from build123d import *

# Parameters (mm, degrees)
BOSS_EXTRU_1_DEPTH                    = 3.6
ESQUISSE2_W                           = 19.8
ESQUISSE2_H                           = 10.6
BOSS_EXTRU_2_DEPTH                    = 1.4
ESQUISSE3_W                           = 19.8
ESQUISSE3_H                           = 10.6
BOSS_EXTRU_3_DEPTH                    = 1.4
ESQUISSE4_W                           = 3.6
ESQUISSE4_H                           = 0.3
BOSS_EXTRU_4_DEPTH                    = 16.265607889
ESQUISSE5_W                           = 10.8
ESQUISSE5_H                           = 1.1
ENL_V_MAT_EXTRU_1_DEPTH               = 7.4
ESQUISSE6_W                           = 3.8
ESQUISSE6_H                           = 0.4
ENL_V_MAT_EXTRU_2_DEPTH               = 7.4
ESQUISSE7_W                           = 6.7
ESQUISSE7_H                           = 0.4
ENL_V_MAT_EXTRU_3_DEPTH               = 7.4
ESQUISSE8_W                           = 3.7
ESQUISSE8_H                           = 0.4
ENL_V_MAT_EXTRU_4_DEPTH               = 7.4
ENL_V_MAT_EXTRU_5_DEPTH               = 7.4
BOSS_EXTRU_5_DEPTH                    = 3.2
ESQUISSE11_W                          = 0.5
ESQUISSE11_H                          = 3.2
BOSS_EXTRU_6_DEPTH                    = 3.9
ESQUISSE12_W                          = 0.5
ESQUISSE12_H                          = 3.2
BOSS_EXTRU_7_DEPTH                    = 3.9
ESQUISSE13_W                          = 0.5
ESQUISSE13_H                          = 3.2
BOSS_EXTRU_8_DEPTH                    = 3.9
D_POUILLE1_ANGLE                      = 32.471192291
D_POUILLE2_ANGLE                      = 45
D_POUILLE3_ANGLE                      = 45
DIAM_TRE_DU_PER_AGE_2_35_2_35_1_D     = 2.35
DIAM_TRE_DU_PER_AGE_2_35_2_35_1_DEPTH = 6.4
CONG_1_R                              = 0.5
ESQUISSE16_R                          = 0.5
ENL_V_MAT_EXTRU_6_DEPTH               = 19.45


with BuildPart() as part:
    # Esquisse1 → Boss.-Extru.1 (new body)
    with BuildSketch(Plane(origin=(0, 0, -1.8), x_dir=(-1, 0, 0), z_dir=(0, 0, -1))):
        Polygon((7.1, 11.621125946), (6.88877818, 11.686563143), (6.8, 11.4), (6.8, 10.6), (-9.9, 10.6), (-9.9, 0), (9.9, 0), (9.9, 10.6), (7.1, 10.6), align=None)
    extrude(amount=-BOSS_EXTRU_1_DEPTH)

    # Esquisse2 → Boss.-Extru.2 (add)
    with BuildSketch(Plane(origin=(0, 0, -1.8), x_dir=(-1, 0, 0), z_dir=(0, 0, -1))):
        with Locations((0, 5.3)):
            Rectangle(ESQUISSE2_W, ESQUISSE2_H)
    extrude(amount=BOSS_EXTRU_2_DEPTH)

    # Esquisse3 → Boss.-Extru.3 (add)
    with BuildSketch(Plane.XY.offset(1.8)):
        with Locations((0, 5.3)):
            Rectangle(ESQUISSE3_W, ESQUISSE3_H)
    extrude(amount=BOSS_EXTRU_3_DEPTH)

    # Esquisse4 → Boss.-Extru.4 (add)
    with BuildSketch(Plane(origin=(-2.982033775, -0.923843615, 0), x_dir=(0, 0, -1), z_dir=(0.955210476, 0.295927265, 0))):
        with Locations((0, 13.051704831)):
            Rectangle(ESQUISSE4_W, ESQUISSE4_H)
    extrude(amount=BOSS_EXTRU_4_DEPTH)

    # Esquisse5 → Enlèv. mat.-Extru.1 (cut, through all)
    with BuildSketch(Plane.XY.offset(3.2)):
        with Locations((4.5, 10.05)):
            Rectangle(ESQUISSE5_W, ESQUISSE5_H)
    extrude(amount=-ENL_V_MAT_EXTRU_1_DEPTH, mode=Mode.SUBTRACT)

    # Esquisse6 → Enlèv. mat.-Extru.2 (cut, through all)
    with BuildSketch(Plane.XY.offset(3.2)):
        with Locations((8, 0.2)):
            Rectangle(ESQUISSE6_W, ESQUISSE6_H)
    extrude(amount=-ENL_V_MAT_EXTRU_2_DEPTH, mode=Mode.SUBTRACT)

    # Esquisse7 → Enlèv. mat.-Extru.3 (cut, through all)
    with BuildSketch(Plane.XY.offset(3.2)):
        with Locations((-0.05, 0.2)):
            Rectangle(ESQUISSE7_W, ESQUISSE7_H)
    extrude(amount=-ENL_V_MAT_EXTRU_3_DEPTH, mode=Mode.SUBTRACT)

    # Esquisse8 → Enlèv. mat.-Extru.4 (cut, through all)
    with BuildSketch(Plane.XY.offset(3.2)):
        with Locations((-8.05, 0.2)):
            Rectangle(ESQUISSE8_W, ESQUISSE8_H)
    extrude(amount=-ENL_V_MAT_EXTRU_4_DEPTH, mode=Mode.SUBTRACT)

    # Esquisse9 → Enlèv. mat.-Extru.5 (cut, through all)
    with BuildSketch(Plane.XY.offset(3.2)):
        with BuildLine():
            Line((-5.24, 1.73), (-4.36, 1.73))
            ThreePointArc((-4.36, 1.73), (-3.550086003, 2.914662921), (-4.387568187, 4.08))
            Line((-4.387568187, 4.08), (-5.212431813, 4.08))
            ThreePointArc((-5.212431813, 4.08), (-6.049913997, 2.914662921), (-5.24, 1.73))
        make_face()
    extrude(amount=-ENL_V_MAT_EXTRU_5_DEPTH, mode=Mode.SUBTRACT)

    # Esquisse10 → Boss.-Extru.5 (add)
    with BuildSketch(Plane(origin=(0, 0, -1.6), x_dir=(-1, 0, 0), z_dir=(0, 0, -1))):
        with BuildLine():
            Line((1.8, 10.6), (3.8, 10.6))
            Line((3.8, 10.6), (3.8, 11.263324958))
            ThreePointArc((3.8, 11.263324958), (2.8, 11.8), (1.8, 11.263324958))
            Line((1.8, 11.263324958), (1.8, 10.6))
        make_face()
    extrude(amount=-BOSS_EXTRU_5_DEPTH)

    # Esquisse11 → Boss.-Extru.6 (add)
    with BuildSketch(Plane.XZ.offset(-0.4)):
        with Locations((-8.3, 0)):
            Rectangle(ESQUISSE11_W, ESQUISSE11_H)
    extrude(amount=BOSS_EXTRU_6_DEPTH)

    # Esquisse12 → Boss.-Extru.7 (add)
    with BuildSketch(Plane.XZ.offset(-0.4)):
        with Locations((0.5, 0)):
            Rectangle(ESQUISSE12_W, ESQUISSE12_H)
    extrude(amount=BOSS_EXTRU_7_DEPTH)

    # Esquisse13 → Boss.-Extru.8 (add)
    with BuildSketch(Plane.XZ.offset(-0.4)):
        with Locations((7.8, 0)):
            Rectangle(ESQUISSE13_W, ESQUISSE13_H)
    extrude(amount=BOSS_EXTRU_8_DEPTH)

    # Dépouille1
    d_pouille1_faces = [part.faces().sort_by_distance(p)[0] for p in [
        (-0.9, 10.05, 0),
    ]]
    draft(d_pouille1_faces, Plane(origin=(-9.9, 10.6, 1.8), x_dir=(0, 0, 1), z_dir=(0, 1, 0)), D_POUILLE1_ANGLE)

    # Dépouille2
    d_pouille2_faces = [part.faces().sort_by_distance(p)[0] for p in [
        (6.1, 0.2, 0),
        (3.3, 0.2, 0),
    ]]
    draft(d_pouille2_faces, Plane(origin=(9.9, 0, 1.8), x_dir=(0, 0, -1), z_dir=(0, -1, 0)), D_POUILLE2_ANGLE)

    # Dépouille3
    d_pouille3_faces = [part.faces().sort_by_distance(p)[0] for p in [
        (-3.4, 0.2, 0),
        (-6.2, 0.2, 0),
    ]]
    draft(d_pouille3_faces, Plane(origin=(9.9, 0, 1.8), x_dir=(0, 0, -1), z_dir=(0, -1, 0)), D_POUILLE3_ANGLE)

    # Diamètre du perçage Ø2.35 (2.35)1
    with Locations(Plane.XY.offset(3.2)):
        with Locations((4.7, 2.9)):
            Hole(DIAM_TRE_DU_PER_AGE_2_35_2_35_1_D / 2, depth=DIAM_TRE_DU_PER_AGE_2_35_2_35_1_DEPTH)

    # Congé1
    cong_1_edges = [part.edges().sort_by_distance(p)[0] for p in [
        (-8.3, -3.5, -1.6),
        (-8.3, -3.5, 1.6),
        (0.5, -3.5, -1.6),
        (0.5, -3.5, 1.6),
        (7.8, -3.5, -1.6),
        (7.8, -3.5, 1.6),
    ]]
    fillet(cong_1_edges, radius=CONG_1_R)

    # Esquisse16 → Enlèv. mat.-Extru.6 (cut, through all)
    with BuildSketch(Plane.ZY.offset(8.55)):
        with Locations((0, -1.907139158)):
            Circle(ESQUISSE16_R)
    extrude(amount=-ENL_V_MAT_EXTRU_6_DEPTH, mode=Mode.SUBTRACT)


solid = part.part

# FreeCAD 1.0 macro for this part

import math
import FreeCAD as App
import Part
import Sketcher
from FreeCAD import Vector
Q = App.Units.Quantity


def edges_at(feature, points):
    """Names of the edges that pass closest to the given points."""
    edges = feature.Shape.Edges
    near = lambda p: min(range(len(edges)), key=lambda i: edges[i].distToShape(Part.Vertex(*p))[0])
    return sorted({f"Edge{near(p) + 1}" for p in points})


def faces_at(feature, points):
    """Names of the faces that lie closest to the given points."""
    faces = feature.Shape.Faces
    near = lambda p: min(range(len(faces)), key=lambda i: faces[i].distToShape(Part.Vertex(*p))[0])
    return sorted({f"Face{near(p) + 1}" for p in points})

doc = App.newDocument("Part")
body = doc.addObject("PartDesign::Body", "Body")

sketch1 = body.newObject("Sketcher::SketchObject", "Sketch")
sketch1.AttachmentSupport = (doc.getObject("XY_Plane"), [""])
sketch1.MapMode = "FlatFace"
sketch1.AttachmentOffset = App.Placement(Vector(0, 0, -1.8), App.Rotation())
sketch1.addGeometry([
    Part.LineSegment(Vector(-7.1, 11.621126, 0), Vector(-6.888778, 11.686563, 0)),
    Part.LineSegment(Vector(-6.888778, 11.686563, 0), Vector(-6.8, 11.4, 0)),
    Part.LineSegment(Vector(-6.8, 11.4, 0), Vector(-6.8, 10.6, 0)),
    Part.LineSegment(Vector(-6.8, 10.6, 0), Vector(9.9, 10.6, 0)),
    Part.LineSegment(Vector(9.9, 10.6, 0), Vector(9.9, 0, 0)),
    Part.LineSegment(Vector(9.9, 0, 0), Vector(-9.9, 0, 0)),
    Part.LineSegment(Vector(-9.9, 0, 0), Vector(-9.9, 10.6, 0)),
    Part.LineSegment(Vector(-9.9, 10.6, 0), Vector(-7.1, 10.6, 0)),
    Part.LineSegment(Vector(-7.1, 10.6, 0), Vector(-7.1, 11.621126, 0)),
], False)
sketch1.addConstraint([
    Sketcher.Constraint("Coincident", 0, 2, 1, 1),
    Sketcher.Constraint("Coincident", 1, 2, 2, 1),
    Sketcher.Constraint("Coincident", 2, 2, 3, 1),
    Sketcher.Constraint("Coincident", 3, 2, 4, 1),
    Sketcher.Constraint("Coincident", 4, 2, 5, 1),
    Sketcher.Constraint("Coincident", 5, 2, 6, 1),
    Sketcher.Constraint("Coincident", 6, 2, 7, 1),
    Sketcher.Constraint("Coincident", 7, 2, 8, 1),
    Sketcher.Constraint("Coincident", 8, 2, 0, 1),
    Sketcher.Constraint("Vertical", 2),
    Sketcher.Constraint("Horizontal", 3),
    Sketcher.Constraint("Vertical", 4),
    Sketcher.Constraint("Horizontal", 5),
    Sketcher.Constraint("Vertical", 6),
    Sketcher.Constraint("Horizontal", 7),
    Sketcher.Constraint("Vertical", 8),
    Sketcher.Constraint("Symmetric", 4, 2, 5, 2, -1, 1),
    Sketcher.Constraint("Perpendicular", 0, 1),
    Sketcher.Constraint("Horizontal", 3, 2, 6, 2),
    Sketcher.Constraint("DistanceX", 3, 1, 3, 2, Q("16.7 mm")),
    Sketcher.Constraint("DistanceX", 5, 2, 5, 1, Q("19.8 mm")),
    Sketcher.Constraint("DistanceX", 7, 1, 7, 2, Q("2.8 mm")),
    Sketcher.Constraint("DistanceY", 2, 2, 2, 1, Q("0.8 mm")),
    Sketcher.Constraint("DistanceY", 4, 2, 4, 1, Q("10.6 mm")),
    Sketcher.Constraint("Distance", 1, Q("0.3 mm")),
    Sketcher.Constraint("DistanceY", 8, 1, 8, 2, Q("1.021126 mm")),
])
pad1 = body.newObject("PartDesign::Pad", "Pad")
pad1.Profile = sketch1
pad1.Length = 3.6

sketch2 = body.newObject("Sketcher::SketchObject", "Sketch001")
sketch2.AttachmentSupport = (doc.getObject("XY_Plane"), [""])
sketch2.MapMode = "FlatFace"
sketch2.AttachmentOffset = App.Placement(Vector(0, 0, -1.8), App.Rotation())
sketch2.addGeometry([
    Part.LineSegment(Vector(9.9, 10.6, 0), Vector(9.9, 0, 0)),
    Part.LineSegment(Vector(9.9, 0, 0), Vector(-9.9, 0, 0)),
    Part.LineSegment(Vector(-9.9, 0, 0), Vector(-9.9, 10.6, 0)),
    Part.LineSegment(Vector(-9.9, 10.6, 0), Vector(9.9, 10.6, 0)),
], False)
sketch2.addConstraint([
    Sketcher.Constraint("Coincident", 0, 2, 1, 1),
    Sketcher.Constraint("Coincident", 1, 2, 2, 1),
    Sketcher.Constraint("Coincident", 2, 2, 3, 1),
    Sketcher.Constraint("Coincident", 3, 2, 0, 1),
    Sketcher.Constraint("Vertical", 0),
    Sketcher.Constraint("Horizontal", 1),
    Sketcher.Constraint("Vertical", 2),
    Sketcher.Constraint("Horizontal", 3),
    Sketcher.Constraint("Symmetric", 0, 2, 1, 2, -1, 1),
    Sketcher.Constraint("DistanceX", 1, 2, 1, 1, Q("19.8 mm")),
    Sketcher.Constraint("DistanceY", 0, 2, 0, 1, Q("10.6 mm")),
])
pad2 = body.newObject("PartDesign::Pad", "Pad001")
pad2.Profile = sketch2
pad2.Length = 1.4
pad2.Reversed = True

sketch3 = body.newObject("Sketcher::SketchObject", "Sketch002")
sketch3.AttachmentSupport = (doc.getObject("XY_Plane"), [""])
sketch3.MapMode = "FlatFace"
sketch3.AttachmentOffset = App.Placement(Vector(0, 0, 1.8), App.Rotation())
sketch3.addGeometry([
    Part.LineSegment(Vector(-9.9, 10.6, 0), Vector(-9.9, 0, 0)),
    Part.LineSegment(Vector(-9.9, 0, 0), Vector(9.9, 0, 0)),
    Part.LineSegment(Vector(9.9, 0, 0), Vector(9.9, 10.6, 0)),
    Part.LineSegment(Vector(9.9, 10.6, 0), Vector(-9.9, 10.6, 0)),
], False)
sketch3.addConstraint([
    Sketcher.Constraint("Coincident", 0, 2, 1, 1),
    Sketcher.Constraint("Coincident", 1, 2, 2, 1),
    Sketcher.Constraint("Coincident", 2, 2, 3, 1),
    Sketcher.Constraint("Coincident", 3, 2, 0, 1),
    Sketcher.Constraint("Vertical", 0),
    Sketcher.Constraint("Horizontal", 1),
    Sketcher.Constraint("Vertical", 2),
    Sketcher.Constraint("Horizontal", 3),
    Sketcher.Constraint("Symmetric", 0, 2, 1, 2, -1, 1),
    Sketcher.Constraint("DistanceX", 1, 1, 1, 2, Q("19.8 mm")),
    Sketcher.Constraint("DistanceY", 0, 2, 0, 1, Q("10.6 mm")),
])
pad3 = body.newObject("PartDesign::Pad", "Pad002")
pad3.Profile = sketch3
pad3.Length = 1.4

sketch4 = body.newObject("Sketcher::SketchObject", "Sketch003")
sketch4.Placement = App.Placement(Vector(-2.982034, -0.923844, 0), App.Rotation(Vector(0, 0, -1), Vector(-0.295927265, 0.955210476, 0), Vector(0.955210476, 0.295927265, 0), "ZXY"))
sketch4.addGeometry([
    Part.LineSegment(Vector(-1.8, 13.201705, 0), Vector(-1.8, 12.901705, 0)),
    Part.LineSegment(Vector(-1.8, 12.901705, 0), Vector(1.8, 12.901705, 0)),
    Part.LineSegment(Vector(1.8, 12.901705, 0), Vector(1.8, 13.201705, 0)),
    Part.LineSegment(Vector(1.8, 13.201705, 0), Vector(-1.8, 13.201705, 0)),
], False)
sketch4.addConstraint([
    Sketcher.Constraint("Coincident", 0, 2, 1, 1),
    Sketcher.Constraint("Coincident", 1, 2, 2, 1),
    Sketcher.Constraint("Coincident", 2, 2, 3, 1),
    Sketcher.Constraint("Coincident", 3, 2, 0, 1),
    Sketcher.Constraint("Vertical", 0),
    Sketcher.Constraint("Horizontal", 1),
    Sketcher.Constraint("Vertical", 2),
    Sketcher.Constraint("Horizontal", 3),
    Sketcher.Constraint("DistanceX", 1, 1, 1, 2, Q("3.6 mm")),
    Sketcher.Constraint("DistanceY", 0, 2, 0, 1, Q("0.3 mm")),
    Sketcher.Constraint("DistanceX", 0, 2, -1, 1, Q("1.8 mm")),
    Sketcher.Constraint("DistanceY", -1, 1, 0, 2, Q("12.901705 mm")),
])
pad4 = body.newObject("PartDesign::Pad", "Pad003")
pad4.Profile = sketch4
pad4.Length = 16.265608

sketch5 = body.newObject("Sketcher::SketchObject", "Sketch004")
sketch5.AttachmentSupport = (doc.getObject("XY_Plane"), [""])
sketch5.MapMode = "FlatFace"
sketch5.AttachmentOffset = App.Placement(Vector(0, 0, 3.2), App.Rotation())
sketch5.addGeometry([
    Part.LineSegment(Vector(-0.9, 10.6, 0), Vector(-0.9, 9.5, 0)),
    Part.LineSegment(Vector(-0.9, 9.5, 0), Vector(9.9, 9.5, 0)),
    Part.LineSegment(Vector(9.9, 9.5, 0), Vector(9.9, 10.6, 0)),
    Part.LineSegment(Vector(9.9, 10.6, 0), Vector(-0.9, 10.6, 0)),
], False)
sketch5.addConstraint([
    Sketcher.Constraint("Coincident", 0, 2, 1, 1),
    Sketcher.Constraint("Coincident", 1, 2, 2, 1),
    Sketcher.Constraint("Coincident", 2, 2, 3, 1),
    Sketcher.Constraint("Coincident", 3, 2, 0, 1),
    Sketcher.Constraint("Vertical", 0),
    Sketcher.Constraint("Horizontal", 1),
    Sketcher.Constraint("Vertical", 2),
    Sketcher.Constraint("Horizontal", 3),
    Sketcher.Constraint("DistanceX", 1, 1, 1, 2, Q("10.8 mm")),
    Sketcher.Constraint("DistanceY", 0, 2, 0, 1, Q("1.1 mm")),
    Sketcher.Constraint("DistanceX", 0, 2, -1, 1, Q("0.9 mm")),
    Sketcher.Constraint("DistanceY", -1, 1, 0, 2, Q("9.5 mm")),
])
pocket1 = body.newObject("PartDesign::Pocket", "Pocket")
pocket1.Profile = sketch5
pocket1.Type = "ThroughAll"

sketch6 = body.newObject("Sketcher::SketchObject", "Sketch005")
sketch6.AttachmentSupport = (doc.getObject("XY_Plane"), [""])
sketch6.MapMode = "FlatFace"
sketch6.AttachmentOffset = App.Placement(Vector(0, 0, 3.2), App.Rotation())
sketch6.addGeometry([
    Part.LineSegment(Vector(6.1, 0.4, 0), Vector(6.1, 0, 0)),
    Part.LineSegment(Vector(6.1, 0, 0), Vector(9.9, 0, 0)),
    Part.LineSegment(Vector(9.9, 0, 0), Vector(9.9, 0.4, 0)),
    Part.LineSegment(Vector(9.9, 0.4, 0), Vector(6.1, 0.4, 0)),
], False)
sketch6.addConstraint([
    Sketcher.Constraint("Coincident", 0, 2, 1, 1),
    Sketcher.Constraint("Coincident", 1, 2, 2, 1),
    Sketcher.Constraint("Coincident", 2, 2, 3, 1),
    Sketcher.Constraint("Coincident", 3, 2, 0, 1),
    Sketcher.Constraint("Vertical", 0),
    Sketcher.Constraint("Horizontal", 1),
    Sketcher.Constraint("Vertical", 2),
    Sketcher.Constraint("Horizontal", 3),
    Sketcher.Constraint("PointOnObject", 0, 2, -1),
    Sketcher.Constraint("DistanceX", 1, 1, 1, 2, Q("3.8 mm")),
    Sketcher.Constraint("DistanceY", 0, 2, 0, 1, Q("0.4 mm")),
    Sketcher.Constraint("DistanceX", -1, 1, 0, 2, Q("6.1 mm")),
])
pocket2 = body.newObject("PartDesign::Pocket", "Pocket001")
pocket2.Profile = sketch6
pocket2.Type = "ThroughAll"

sketch7 = body.newObject("Sketcher::SketchObject", "Sketch006")
sketch7.AttachmentSupport = (doc.getObject("XY_Plane"), [""])
sketch7.MapMode = "FlatFace"
sketch7.AttachmentOffset = App.Placement(Vector(0, 0, 3.2), App.Rotation())
sketch7.addGeometry([
    Part.LineSegment(Vector(-3.4, 0.4, 0), Vector(-3.4, 0, 0)),
    Part.LineSegment(Vector(-3.4, 0, 0), Vector(3.3, 0, 0)),
    Part.LineSegment(Vector(3.3, 0, 0), Vector(3.3, 0.4, 0)),
    Part.LineSegment(Vector(3.3, 0.4, 0), Vector(-3.4, 0.4, 0)),
], False)
sketch7.addConstraint([
    Sketcher.Constraint("Coincident", 0, 2, 1, 1),
    Sketcher.Constraint("Coincident", 1, 2, 2, 1),
    Sketcher.Constraint("Coincident", 2, 2, 3, 1),
    Sketcher.Constraint("Coincident", 3, 2, 0, 1),
    Sketcher.Constraint("Vertical", 0),
    Sketcher.Constraint("Horizontal", 1),
    Sketcher.Constraint("Vertical", 2),
    Sketcher.Constraint("Horizontal", 3),
    Sketcher.Constraint("PointOnObject", 0, 2, -1),
    Sketcher.Constraint("DistanceX", 1, 1, 1, 2, Q("6.7 mm")),
    Sketcher.Constraint("DistanceY", 0, 2, 0, 1, Q("0.4 mm")),
    Sketcher.Constraint("DistanceX", 0, 2, -1, 1, Q("3.4 mm")),
])
pocket3 = body.newObject("PartDesign::Pocket", "Pocket002")
pocket3.Profile = sketch7
pocket3.Type = "ThroughAll"

sketch8 = body.newObject("Sketcher::SketchObject", "Sketch007")
sketch8.AttachmentSupport = (doc.getObject("XY_Plane"), [""])
sketch8.MapMode = "FlatFace"
sketch8.AttachmentOffset = App.Placement(Vector(0, 0, 3.2), App.Rotation())
sketch8.addGeometry([
    Part.LineSegment(Vector(-9.9, 0.4, 0), Vector(-9.9, 0, 0)),
    Part.LineSegment(Vector(-9.9, 0, 0), Vector(-6.2, 0, 0)),
    Part.LineSegment(Vector(-6.2, 0, 0), Vector(-6.2, 0.4, 0)),
    Part.LineSegment(Vector(-6.2, 0.4, 0), Vector(-9.9, 0.4, 0)),
], False)
sketch8.addConstraint([
    Sketcher.Constraint("Coincident", 0, 2, 1, 1),
    Sketcher.Constraint("Coincident", 1, 2, 2, 1),
    Sketcher.Constraint("Coincident", 2, 2, 3, 1),
    Sketcher.Constraint("Coincident", 3, 2, 0, 1),
    Sketcher.Constraint("Vertical", 0),
    Sketcher.Constraint("Horizontal", 1),
    Sketcher.Constraint("Vertical", 2),
    Sketcher.Constraint("Horizontal", 3),
    Sketcher.Constraint("PointOnObject", 0, 2, -1),
    Sketcher.Constraint("DistanceX", 1, 1, 1, 2, Q("3.7 mm")),
    Sketcher.Constraint("DistanceY", 0, 2, 0, 1, Q("0.4 mm")),
    Sketcher.Constraint("DistanceX", 0, 2, -1, 1, Q("9.9 mm")),
])
pocket4 = body.newObject("PartDesign::Pocket", "Pocket003")
pocket4.Profile = sketch8
pocket4.Type = "ThroughAll"

sketch9 = body.newObject("Sketcher::SketchObject", "Sketch008")
sketch9.AttachmentSupport = (doc.getObject("XY_Plane"), [""])
sketch9.MapMode = "FlatFace"
sketch9.AttachmentOffset = App.Placement(Vector(0, 0, 3.2), App.Rotation())
sketch9.addGeometry([
    Part.LineSegment(Vector(-5.24, 1.73, 0), Vector(-4.36, 1.73, 0)),
    Part.ArcOfCircle(Part.Circle(Vector(-4.8, 2.9, 0), Vector(0, 0, 1), 1.25), math.radians(-69.390307), math.radians(70.734535)),
    Part.LineSegment(Vector(-4.387568, 4.08, 0), Vector(-5.212432, 4.08, 0)),
    Part.ArcOfCircle(Part.Circle(Vector(-4.8, 2.9, 0), Vector(0, 0, 1), 1.25), math.radians(109.265465), math.radians(249.390307)),
], False)
sketch9.addConstraint([
    Sketcher.Constraint("Coincident", 0, 2, 1, 1),
    Sketcher.Constraint("Coincident", 1, 2, 2, 1),
    Sketcher.Constraint("Coincident", 2, 2, 3, 1),
    Sketcher.Constraint("Coincident", 3, 2, 0, 1),
    Sketcher.Constraint("Horizontal", 0),
    Sketcher.Constraint("Horizontal", 2),
    Sketcher.Constraint("Coincident", 3, 3, 1, 3),
    Sketcher.Constraint("Equal", 1, 3),
    Sketcher.Constraint("Radius", 1, Q("1.25 mm")),
    Sketcher.Constraint("DistanceX", 0, 1, 0, 2, Q("0.88 mm")),
    Sketcher.Constraint("DistanceX", 1, 3, -1, 1, Q("4.8 mm")),
    Sketcher.Constraint("DistanceY", -1, 1, 1, 3, Q("2.9 mm")),
    Sketcher.Constraint("DistanceY", -1, 1, 1, 2, Q("4.08 mm")),
])
pocket5 = body.newObject("PartDesign::Pocket", "Pocket004")
pocket5.Profile = sketch9
pocket5.Type = "ThroughAll"

sketch10 = body.newObject("Sketcher::SketchObject", "Sketch009")
sketch10.AttachmentSupport = (doc.getObject("XY_Plane"), [""])
sketch10.MapMode = "FlatFace"
sketch10.AttachmentOffset = App.Placement(Vector(0, 0, -1.6), App.Rotation())
sketch10.addGeometry([
    Part.LineSegment(Vector(-1.8, 10.6, 0), Vector(-3.8, 10.6, 0)),
    Part.LineSegment(Vector(-3.8, 10.6, 0), Vector(-3.8, 11.263325, 0)),
    Part.ArcOfCircle(Part.Circle(Vector(-2.8, 10.6, 0), Vector(0, 0, 1), 1.2), math.radians(33.55731), math.radians(146.44269)),
    Part.LineSegment(Vector(-1.8, 11.263325, 0), Vector(-1.8, 10.6, 0)),
], False)
sketch10.addConstraint([
    Sketcher.Constraint("Coincident", 0, 2, 1, 1),
    Sketcher.Constraint("Coincident", 1, 2, 2, 2),
    Sketcher.Constraint("Coincident", 2, 1, 3, 1),
    Sketcher.Constraint("Coincident", 3, 2, 0, 1),
    Sketcher.Constraint("Horizontal", 0),
    Sketcher.Constraint("Vertical", 1),
    Sketcher.Constraint("Vertical", 3),
    Sketcher.Constraint("Horizontal", 2, 3, 0, 2),
    Sketcher.Constraint("Horizontal", 1, 2, 2, 1),
    Sketcher.Constraint("Radius", 2, Q("1.2 mm")),
    Sketcher.Constraint("DistanceX", 0, 2, 0, 1, Q("2 mm")),
    Sketcher.Constraint("DistanceX", 2, 3, -1, 1, Q("2.8 mm")),
    Sketcher.Constraint("DistanceY", -1, 1, 2, 3, Q("10.6 mm")),
])
pad5 = body.newObject("PartDesign::Pad", "Pad004")
pad5.Profile = sketch10
pad5.Length = 3.2

sketch11 = body.newObject("Sketcher::SketchObject", "Sketch010")
sketch11.AttachmentSupport = (doc.getObject("XZ_Plane"), [""])
sketch11.MapMode = "FlatFace"
sketch11.AttachmentOffset = App.Placement(Vector(0, 0, -0.4), App.Rotation())
sketch11.addGeometry([
    Part.LineSegment(Vector(-8.55, 1.6, 0), Vector(-8.55, -1.6, 0)),
    Part.LineSegment(Vector(-8.55, -1.6, 0), Vector(-8.05, -1.6, 0)),
    Part.LineSegment(Vector(-8.05, -1.6, 0), Vector(-8.05, 1.6, 0)),
    Part.LineSegment(Vector(-8.05, 1.6, 0), Vector(-8.55, 1.6, 0)),
], False)
sketch11.addConstraint([
    Sketcher.Constraint("Coincident", 0, 2, 1, 1),
    Sketcher.Constraint("Coincident", 1, 2, 2, 1),
    Sketcher.Constraint("Coincident", 2, 2, 3, 1),
    Sketcher.Constraint("Coincident", 3, 2, 0, 1),
    Sketcher.Constraint("Vertical", 0),
    Sketcher.Constraint("Horizontal", 1),
    Sketcher.Constraint("Vertical", 2),
    Sketcher.Constraint("Horizontal", 3),
    Sketcher.Constraint("DistanceX", 1, 1, 1, 2, Q("0.5 mm")),
    Sketcher.Constraint("DistanceY", 0, 2, 0, 1, Q("3.2 mm")),
    Sketcher.Constraint("DistanceY", 0, 2, -1, 1, Q("1.6 mm")),
    Sketcher.Constraint("DistanceX", 0, 2, -1, 1, Q("8.55 mm")),
])
pad6 = body.newObject("PartDesign::Pad", "Pad005")
pad6.Profile = sketch11
pad6.Length = 3.9

sketch12 = body.newObject("Sketcher::SketchObject", "Sketch011")
sketch12.AttachmentSupport = (doc.getObject("XZ_Plane"), [""])
sketch12.MapMode = "FlatFace"
sketch12.AttachmentOffset = App.Placement(Vector(0, 0, -0.4), App.Rotation())
sketch12.addGeometry([
    Part.LineSegment(Vector(0.25, 1.6, 0), Vector(0.25, -1.6, 0)),
    Part.LineSegment(Vector(0.25, -1.6, 0), Vector(0.75, -1.6, 0)),
    Part.LineSegment(Vector(0.75, -1.6, 0), Vector(0.75, 1.6, 0)),
    Part.LineSegment(Vector(0.75, 1.6, 0), Vector(0.25, 1.6, 0)),
], False)
sketch12.addConstraint([
    Sketcher.Constraint("Coincident", 0, 2, 1, 1),
    Sketcher.Constraint("Coincident", 1, 2, 2, 1),
    Sketcher.Constraint("Coincident", 2, 2, 3, 1),
    Sketcher.Constraint("Coincident", 3, 2, 0, 1),
    Sketcher.Constraint("Vertical", 0),
    Sketcher.Constraint("Horizontal", 1),
    Sketcher.Constraint("Vertical", 2),
    Sketcher.Constraint("Horizontal", 3),
    Sketcher.Constraint("DistanceX", 1, 1, 1, 2, Q("0.5 mm")),
    Sketcher.Constraint("DistanceY", 0, 2, 0, 1, Q("3.2 mm")),
    Sketcher.Constraint("DistanceY", 0, 2, -1, 1, Q("1.6 mm")),
    Sketcher.Constraint("DistanceX", -1, 1, 0, 2, Q("0.25 mm")),
])
pad7 = body.newObject("PartDesign::Pad", "Pad006")
pad7.Profile = sketch12
pad7.Length = 3.9

sketch13 = body.newObject("Sketcher::SketchObject", "Sketch012")
sketch13.AttachmentSupport = (doc.getObject("XZ_Plane"), [""])
sketch13.MapMode = "FlatFace"
sketch13.AttachmentOffset = App.Placement(Vector(0, 0, -0.4), App.Rotation())
sketch13.addGeometry([
    Part.LineSegment(Vector(7.55, 1.6, 0), Vector(7.55, -1.6, 0)),
    Part.LineSegment(Vector(7.55, -1.6, 0), Vector(8.05, -1.6, 0)),
    Part.LineSegment(Vector(8.05, -1.6, 0), Vector(8.05, 1.6, 0)),
    Part.LineSegment(Vector(8.05, 1.6, 0), Vector(7.55, 1.6, 0)),
], False)
sketch13.addConstraint([
    Sketcher.Constraint("Coincident", 0, 2, 1, 1),
    Sketcher.Constraint("Coincident", 1, 2, 2, 1),
    Sketcher.Constraint("Coincident", 2, 2, 3, 1),
    Sketcher.Constraint("Coincident", 3, 2, 0, 1),
    Sketcher.Constraint("Vertical", 0),
    Sketcher.Constraint("Horizontal", 1),
    Sketcher.Constraint("Vertical", 2),
    Sketcher.Constraint("Horizontal", 3),
    Sketcher.Constraint("DistanceX", 1, 1, 1, 2, Q("0.5 mm")),
    Sketcher.Constraint("DistanceY", 0, 2, 0, 1, Q("3.2 mm")),
    Sketcher.Constraint("DistanceY", 0, 2, -1, 1, Q("1.6 mm")),
    Sketcher.Constraint("DistanceX", -1, 1, 0, 2, Q("7.55 mm")),
])
pad8 = body.newObject("PartDesign::Pad", "Pad007")
pad8.Profile = sketch13
pad8.Length = 3.9
doc.recompute()

datumplane = body.newObject("PartDesign::Plane", "DatumPlane")
datumplane.AttachmentSupport = (doc.getObject("XZ_Plane"), [""])
datumplane.MapMode = "FlatFace"
datumplane.AttachmentOffset = App.Placement(Vector(0, 0, -10.6), App.Rotation())
draft = body.newObject("PartDesign::Draft", "Draft")
draft.Base = (pad8, faces_at(pad8, [(-0.9, 10.05, 0)]))
draft.NeutralPlane = (datumplane, [""])
draft.Angle = 32.471192
draft.Reversed = True
doc.recompute()

draft2 = body.newObject("PartDesign::Draft", "Draft001")
draft2.Base = (draft, faces_at(draft, [(6.1, 0.2, 0), (3.3, 0.2, 0)]))
draft2.NeutralPlane = (doc.getObject("XZ_Plane"), [""])
draft2.Angle = 45
draft2.Reversed = False
doc.recompute()

draft3 = body.newObject("PartDesign::Draft", "Draft002")
draft3.Base = (draft2, faces_at(draft2, [(-3.4, 0.2, 0), (-6.2, 0.2, 0)]))
draft3.NeutralPlane = (doc.getObject("XZ_Plane"), [""])
draft3.Angle = 45
draft3.Reversed = False

sketch14 = body.newObject("Sketcher::SketchObject", "Sketch013")
sketch14.AttachmentSupport = (doc.getObject("XY_Plane"), [""])
sketch14.MapMode = "FlatFace"
sketch14.AttachmentOffset = App.Placement(Vector(0, 0, 3.2), App.Rotation())
sketch14.addGeometry(Part.Circle(Vector(4.7, 2.9, 0), Vector(0, 0, 1), 1.175), False)
sketch14.addConstraint([
    Sketcher.Constraint("Diameter", 0, Q("2.35 mm")),
    Sketcher.Constraint("DistanceX", -1, 1, 0, 3, Q("4.7 mm")),
    Sketcher.Constraint("DistanceY", -1, 1, 0, 3, Q("2.9 mm")),
])
doc.recompute()
hole = body.newObject("PartDesign::Hole", "Hole")
hole.Profile = sketch14
hole.ThreadType = "None"
hole.Diameter = 2.35
hole.DepthType = "Dimension"
hole.Depth = 6.4
hole.DrillPoint = "Flat"
doc.recompute()

fillet = body.newObject("PartDesign::Fillet", "Fillet")
fillet.Base = (hole, edges_at(hole, [
    (-8.3, -3.5, -1.6),
    (-8.3, -3.5, 1.6),
    (0.5, -3.5, -1.6),
    (0.5, -3.5, 1.6),
    (7.8, -3.5, -1.6),
    (7.8, -3.5, 1.6),
]))
fillet.Radius = 0.5

sketch15 = body.newObject("Sketcher::SketchObject", "Sketch014")
sketch15.AttachmentSupport = (doc.getObject("YZ_Plane"), [""])
sketch15.MapMode = "FlatFace"
sketch15.AttachmentOffset = App.Placement(Vector(0, 0, -8.55), App.Rotation())
sketch15.addGeometry(Part.Circle(Vector(-1.907139, 0, 0), Vector(0, 0, 1), 0.5), False)
sketch15.addConstraint([
    Sketcher.Constraint("PointOnObject", 0, 3, -1),
    Sketcher.Constraint("Diameter", 0, Q("1 mm")),
    Sketcher.Constraint("DistanceX", 0, 3, -1, 1, Q("1.907139 mm")),
])
pocket6 = body.newObject("PartDesign::Pocket", "Pocket005")
pocket6.Profile = sketch15
pocket6.Type = "ThroughAll"
pocket6.Reversed = True

doc.recompute()
